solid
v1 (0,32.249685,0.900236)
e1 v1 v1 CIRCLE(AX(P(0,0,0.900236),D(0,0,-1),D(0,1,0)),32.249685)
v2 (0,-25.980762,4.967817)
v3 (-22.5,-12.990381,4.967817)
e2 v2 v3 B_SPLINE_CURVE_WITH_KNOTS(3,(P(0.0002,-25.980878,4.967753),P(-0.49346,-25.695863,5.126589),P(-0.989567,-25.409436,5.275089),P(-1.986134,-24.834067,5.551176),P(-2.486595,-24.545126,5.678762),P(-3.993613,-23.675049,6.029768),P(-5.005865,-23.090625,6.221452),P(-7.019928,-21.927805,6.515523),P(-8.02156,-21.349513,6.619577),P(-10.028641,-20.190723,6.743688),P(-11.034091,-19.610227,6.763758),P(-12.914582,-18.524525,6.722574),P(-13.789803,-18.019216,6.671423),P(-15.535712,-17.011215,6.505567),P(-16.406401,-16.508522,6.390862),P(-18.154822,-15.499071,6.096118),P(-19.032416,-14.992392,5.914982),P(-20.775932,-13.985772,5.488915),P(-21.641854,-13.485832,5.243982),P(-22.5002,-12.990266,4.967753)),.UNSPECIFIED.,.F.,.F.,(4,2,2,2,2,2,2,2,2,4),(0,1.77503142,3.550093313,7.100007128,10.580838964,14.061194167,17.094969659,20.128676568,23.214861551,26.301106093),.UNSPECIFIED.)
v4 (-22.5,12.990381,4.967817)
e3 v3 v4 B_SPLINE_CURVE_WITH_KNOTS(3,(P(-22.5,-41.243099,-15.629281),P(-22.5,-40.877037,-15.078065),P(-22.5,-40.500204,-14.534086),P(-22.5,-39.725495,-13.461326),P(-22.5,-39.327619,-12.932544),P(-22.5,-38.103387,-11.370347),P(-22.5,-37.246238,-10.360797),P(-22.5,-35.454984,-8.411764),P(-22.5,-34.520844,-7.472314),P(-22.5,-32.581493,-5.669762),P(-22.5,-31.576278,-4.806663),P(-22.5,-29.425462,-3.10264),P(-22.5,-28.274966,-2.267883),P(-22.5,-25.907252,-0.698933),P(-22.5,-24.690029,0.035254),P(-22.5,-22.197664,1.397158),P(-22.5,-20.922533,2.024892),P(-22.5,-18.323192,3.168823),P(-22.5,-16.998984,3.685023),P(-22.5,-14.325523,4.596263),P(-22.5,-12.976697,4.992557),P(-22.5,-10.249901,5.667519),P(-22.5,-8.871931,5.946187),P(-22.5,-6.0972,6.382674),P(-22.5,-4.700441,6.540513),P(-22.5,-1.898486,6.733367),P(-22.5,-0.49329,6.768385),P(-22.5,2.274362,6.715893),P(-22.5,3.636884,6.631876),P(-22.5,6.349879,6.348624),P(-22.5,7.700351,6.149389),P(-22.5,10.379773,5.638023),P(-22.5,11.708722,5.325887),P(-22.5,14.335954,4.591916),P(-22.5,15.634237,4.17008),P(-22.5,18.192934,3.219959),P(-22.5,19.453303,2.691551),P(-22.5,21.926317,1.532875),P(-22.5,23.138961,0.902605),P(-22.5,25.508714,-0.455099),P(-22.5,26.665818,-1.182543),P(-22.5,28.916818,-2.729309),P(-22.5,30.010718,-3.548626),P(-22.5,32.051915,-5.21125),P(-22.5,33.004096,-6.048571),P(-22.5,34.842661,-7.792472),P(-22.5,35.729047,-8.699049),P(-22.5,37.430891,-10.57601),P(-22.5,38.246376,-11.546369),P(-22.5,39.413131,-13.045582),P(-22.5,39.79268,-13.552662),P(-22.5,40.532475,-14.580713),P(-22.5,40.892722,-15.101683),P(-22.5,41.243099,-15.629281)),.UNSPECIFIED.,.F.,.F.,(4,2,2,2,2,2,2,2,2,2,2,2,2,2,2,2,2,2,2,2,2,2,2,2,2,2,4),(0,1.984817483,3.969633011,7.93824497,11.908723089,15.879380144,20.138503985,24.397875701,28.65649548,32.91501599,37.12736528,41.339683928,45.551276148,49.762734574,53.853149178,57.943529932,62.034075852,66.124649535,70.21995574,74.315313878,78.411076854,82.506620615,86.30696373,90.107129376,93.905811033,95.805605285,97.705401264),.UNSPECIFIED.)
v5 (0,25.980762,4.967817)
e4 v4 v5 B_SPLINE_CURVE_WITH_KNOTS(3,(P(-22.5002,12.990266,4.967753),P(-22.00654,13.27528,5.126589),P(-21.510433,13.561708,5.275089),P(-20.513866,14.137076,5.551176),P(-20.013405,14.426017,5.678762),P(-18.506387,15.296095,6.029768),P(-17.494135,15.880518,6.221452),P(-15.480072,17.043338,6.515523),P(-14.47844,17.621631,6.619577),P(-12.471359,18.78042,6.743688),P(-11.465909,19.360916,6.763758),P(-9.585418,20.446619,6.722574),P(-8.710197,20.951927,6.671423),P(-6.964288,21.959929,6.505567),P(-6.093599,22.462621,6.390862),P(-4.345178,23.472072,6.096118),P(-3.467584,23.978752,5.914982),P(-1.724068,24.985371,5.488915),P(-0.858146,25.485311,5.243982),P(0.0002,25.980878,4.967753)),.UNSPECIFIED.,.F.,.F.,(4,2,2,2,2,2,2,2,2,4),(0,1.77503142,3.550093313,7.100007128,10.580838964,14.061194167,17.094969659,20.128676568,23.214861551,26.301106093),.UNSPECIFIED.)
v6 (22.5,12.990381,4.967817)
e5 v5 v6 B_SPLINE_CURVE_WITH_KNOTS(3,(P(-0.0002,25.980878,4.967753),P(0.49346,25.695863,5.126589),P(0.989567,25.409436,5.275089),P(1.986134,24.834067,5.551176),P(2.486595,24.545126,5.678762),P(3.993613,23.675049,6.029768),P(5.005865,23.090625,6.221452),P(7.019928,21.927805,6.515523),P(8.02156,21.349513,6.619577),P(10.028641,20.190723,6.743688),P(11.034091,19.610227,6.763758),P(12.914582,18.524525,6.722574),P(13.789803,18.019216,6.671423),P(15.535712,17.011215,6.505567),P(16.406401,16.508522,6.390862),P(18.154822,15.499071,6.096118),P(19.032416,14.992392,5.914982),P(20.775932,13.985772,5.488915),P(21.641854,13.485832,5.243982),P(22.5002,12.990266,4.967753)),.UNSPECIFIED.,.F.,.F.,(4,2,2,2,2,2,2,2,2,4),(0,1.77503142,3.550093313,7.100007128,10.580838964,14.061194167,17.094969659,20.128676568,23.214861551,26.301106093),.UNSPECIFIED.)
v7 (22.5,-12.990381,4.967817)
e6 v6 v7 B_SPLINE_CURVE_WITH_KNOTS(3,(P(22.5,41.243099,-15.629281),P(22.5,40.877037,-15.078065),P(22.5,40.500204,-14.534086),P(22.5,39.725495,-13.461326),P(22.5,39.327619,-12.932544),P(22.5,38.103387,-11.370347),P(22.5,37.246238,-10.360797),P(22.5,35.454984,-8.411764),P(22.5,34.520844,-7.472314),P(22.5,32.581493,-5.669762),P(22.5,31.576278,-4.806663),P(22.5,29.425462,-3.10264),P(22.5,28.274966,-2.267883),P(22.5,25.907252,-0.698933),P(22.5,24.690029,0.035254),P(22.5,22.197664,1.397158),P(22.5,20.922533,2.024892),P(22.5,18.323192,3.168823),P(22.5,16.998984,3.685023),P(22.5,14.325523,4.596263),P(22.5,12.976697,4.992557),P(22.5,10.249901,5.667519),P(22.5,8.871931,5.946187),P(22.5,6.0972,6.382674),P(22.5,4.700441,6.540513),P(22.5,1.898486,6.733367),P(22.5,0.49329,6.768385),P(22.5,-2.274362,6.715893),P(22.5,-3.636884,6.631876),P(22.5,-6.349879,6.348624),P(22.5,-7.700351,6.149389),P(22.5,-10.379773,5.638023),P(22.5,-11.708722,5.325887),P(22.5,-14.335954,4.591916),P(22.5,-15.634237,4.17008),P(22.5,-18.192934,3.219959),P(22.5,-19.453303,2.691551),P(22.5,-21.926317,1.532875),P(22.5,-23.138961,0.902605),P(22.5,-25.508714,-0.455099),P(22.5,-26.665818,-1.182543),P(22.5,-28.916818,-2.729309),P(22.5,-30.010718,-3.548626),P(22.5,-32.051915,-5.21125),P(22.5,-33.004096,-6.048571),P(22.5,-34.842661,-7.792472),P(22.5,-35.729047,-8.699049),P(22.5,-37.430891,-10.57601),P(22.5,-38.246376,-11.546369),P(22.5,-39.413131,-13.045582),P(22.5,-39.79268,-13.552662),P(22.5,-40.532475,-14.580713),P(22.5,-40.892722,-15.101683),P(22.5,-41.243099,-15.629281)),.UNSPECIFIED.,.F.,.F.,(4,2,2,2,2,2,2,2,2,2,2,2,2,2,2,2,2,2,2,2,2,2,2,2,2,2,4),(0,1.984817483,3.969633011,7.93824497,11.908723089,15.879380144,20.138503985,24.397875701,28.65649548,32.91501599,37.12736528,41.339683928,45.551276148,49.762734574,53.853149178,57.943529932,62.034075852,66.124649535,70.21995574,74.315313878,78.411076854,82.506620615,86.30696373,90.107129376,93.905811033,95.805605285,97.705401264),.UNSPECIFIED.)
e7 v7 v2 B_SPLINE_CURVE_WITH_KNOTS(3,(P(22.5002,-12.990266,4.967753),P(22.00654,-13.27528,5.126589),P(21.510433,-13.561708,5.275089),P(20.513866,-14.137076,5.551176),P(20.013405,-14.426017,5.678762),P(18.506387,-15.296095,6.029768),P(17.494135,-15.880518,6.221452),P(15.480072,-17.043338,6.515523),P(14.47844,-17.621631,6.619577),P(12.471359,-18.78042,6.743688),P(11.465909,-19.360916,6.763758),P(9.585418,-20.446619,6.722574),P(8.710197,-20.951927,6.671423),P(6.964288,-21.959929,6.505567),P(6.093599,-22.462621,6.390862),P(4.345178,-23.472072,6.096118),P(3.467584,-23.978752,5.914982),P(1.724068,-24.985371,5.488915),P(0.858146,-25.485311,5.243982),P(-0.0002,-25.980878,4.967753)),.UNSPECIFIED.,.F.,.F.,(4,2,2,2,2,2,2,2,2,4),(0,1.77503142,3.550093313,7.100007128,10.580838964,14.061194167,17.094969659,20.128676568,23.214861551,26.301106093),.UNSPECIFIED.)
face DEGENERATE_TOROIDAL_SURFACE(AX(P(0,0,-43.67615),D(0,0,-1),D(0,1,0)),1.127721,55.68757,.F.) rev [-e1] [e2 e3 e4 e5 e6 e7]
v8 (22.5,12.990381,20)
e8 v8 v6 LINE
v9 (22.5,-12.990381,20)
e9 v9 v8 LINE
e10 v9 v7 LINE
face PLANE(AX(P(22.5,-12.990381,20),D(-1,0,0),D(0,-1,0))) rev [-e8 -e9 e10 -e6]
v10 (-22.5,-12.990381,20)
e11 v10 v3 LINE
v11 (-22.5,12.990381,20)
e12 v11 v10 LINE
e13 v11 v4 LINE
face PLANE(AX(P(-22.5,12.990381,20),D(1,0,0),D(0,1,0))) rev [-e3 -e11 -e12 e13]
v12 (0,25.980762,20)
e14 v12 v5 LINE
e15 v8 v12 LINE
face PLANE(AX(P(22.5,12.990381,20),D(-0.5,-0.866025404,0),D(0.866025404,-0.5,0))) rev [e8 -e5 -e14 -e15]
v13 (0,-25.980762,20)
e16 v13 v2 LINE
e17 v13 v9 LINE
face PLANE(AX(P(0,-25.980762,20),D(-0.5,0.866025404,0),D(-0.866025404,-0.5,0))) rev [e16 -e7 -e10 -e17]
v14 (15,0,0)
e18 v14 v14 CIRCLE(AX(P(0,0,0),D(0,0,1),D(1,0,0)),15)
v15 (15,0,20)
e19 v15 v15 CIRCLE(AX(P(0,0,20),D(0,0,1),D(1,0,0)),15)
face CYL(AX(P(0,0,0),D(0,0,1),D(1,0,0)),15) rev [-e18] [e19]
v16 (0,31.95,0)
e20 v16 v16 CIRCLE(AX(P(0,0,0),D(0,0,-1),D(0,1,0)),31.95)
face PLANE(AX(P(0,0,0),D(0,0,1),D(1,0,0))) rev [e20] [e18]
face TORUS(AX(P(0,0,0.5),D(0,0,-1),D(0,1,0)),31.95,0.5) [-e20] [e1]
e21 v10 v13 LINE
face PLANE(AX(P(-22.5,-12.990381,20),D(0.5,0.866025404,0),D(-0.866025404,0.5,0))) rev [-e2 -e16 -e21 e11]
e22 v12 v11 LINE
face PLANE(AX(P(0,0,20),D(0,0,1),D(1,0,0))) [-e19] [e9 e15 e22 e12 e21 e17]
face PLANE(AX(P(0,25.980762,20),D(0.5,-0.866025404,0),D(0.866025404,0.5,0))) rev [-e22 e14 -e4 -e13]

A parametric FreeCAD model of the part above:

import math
import FreeCAD as App
import Part
import Sketcher

V = App.Vector
Q = App.Units.Quantity


def add_polygon(sketch, points):
    """Adds a closed chain of lines whose ends are joined by coincident constraints."""
    first, n = sketch.GeometryCount, len(points)
    for a, b in zip(points, points[1:] + points[:1]):
        sketch.addGeometry(Part.LineSegment(App.Vector(*a, 0), App.Vector(*b, 0)), False)
    for i in range(n):
        sketch.addConstraint(Sketcher.Constraint("Coincident", first + i, 2, first + (i + 1) % n, 1))

doc = App.newDocument("Part")
body = doc.addObject("PartDesign::Body", "Body")

sketch1 = body.newObject("Sketcher::SketchObject", "Sketch")
sketch1.AttachmentSupport = (doc.getObject("XY_Plane"), [""])
sketch1.MapMode = "FlatFace"
add_polygon(sketch1, [(22.5, 12.990381), (0, 25.980762), (-22.5, 12.990381), (-22.5, -12.990381), (0, -25.980762), (22.5, -12.990381)])
sketch1.addConstraint([
    Sketcher.Constraint("Vertical", 2),
    Sketcher.Constraint("Vertical", 5),
    Sketcher.Constraint("Symmetric", 0, 2, 3, 2, -1, 1),
    Sketcher.Constraint("Symmetric", 1, 2, 4, 2, -1, 1),
    Sketcher.Constraint("PointOnObject", 0, 2, -2),
    Sketcher.Constraint("Parallel", 0, 3),
    Sketcher.Constraint("Horizontal", 2, 2, 4, 2),
    Sketcher.Constraint("Angle", 0, Q("150 deg")),
    Sketcher.Constraint("DistanceX", 2, 2, 4, 2, 45.0),
    Sketcher.Constraint("DistanceY", 2, 2, 2, 1, 25.980762),
])
pad1 = body.newObject("PartDesign::Pad", "Pad")
pad1.Profile = sketch1
pad1.Length = 20

sketch2 = body.newObject("Sketcher::SketchObject", "Sketch001")
sketch2.AttachmentSupport = (doc.getObject("YZ_Plane"), [""])
sketch2.MapMode = "FlatFace"
sketch2.addGeometry([
    Part.LineSegment(V(0, 0, 0), V(0, 12, 0)),
    Part.ArcOfCircle(Part.Circle(V(1.127721, -43.67615, 0), V(0, 0, 1), 55.68757), math.radians(91.160368), math.radians(126.824722)),
    Part.ArcOfCircle(Part.Circle(V(-31.95, 0.5, 0), V(0, 0, 1), 0.5), math.radians(126.824722), math.radians(270)),
    Part.LineSegment(V(-31.95, 0, 0), V(0, 0, 0)),
], False)
sketch2.addConstraint([
    Sketcher.Constraint("Coincident", 0, 2, 1, 1),
    Sketcher.Constraint("Tangent", 1, 2, 2, 1),
    Sketcher.Constraint("Tangent", 2, 2, 3, 1),
    Sketcher.Constraint("Coincident", 3, 2, 0, 1),
    Sketcher.Constraint("Vertical", 0),
    Sketcher.Constraint("Horizontal", 3),
    Sketcher.Constraint("Coincident", 3, 2, -1, 1),
    Sketcher.Constraint("Radius", 2, 0.5),
    Sketcher.Constraint("DistanceY", 0, 1, 0, 2, 12.0),
    Sketcher.Constraint("DistanceX", 3, 1, 3, 2, 31.95),
    Sketcher.Constraint("Radius", 1, 55.68757),
])
revolution = body.newObject("PartDesign::Revolution", "Revolution")
revolution.Profile = sketch2
revolution.ReferenceAxis = (sketch2, ["V_Axis"])
revolution.Angle = 360

sketch3 = body.newObject("Sketcher::SketchObject", "Sketch002")
sketch3.AttachmentSupport = (doc.getObject("XY_Plane"), [""])
sketch3.MapMode = "FlatFace"
sketch3.AttachmentOffset = App.Placement(V(0, 0, 20), App.Rotation())
sketch3.addGeometry(Part.Circle(V(0, 0, 0), V(0, 0, 1), 15), False)
sketch3.addConstraint([
    Sketcher.Constraint("Coincident", 0, 3, -1, 1),
    Sketcher.Constraint("Diameter", 0, 30.0),
])
pocket1 = body.newObject("PartDesign::Pocket", "Pocket")
pocket1.Profile = sketch3
pocket1.Type = "ThroughAll"

doc.recompute()
